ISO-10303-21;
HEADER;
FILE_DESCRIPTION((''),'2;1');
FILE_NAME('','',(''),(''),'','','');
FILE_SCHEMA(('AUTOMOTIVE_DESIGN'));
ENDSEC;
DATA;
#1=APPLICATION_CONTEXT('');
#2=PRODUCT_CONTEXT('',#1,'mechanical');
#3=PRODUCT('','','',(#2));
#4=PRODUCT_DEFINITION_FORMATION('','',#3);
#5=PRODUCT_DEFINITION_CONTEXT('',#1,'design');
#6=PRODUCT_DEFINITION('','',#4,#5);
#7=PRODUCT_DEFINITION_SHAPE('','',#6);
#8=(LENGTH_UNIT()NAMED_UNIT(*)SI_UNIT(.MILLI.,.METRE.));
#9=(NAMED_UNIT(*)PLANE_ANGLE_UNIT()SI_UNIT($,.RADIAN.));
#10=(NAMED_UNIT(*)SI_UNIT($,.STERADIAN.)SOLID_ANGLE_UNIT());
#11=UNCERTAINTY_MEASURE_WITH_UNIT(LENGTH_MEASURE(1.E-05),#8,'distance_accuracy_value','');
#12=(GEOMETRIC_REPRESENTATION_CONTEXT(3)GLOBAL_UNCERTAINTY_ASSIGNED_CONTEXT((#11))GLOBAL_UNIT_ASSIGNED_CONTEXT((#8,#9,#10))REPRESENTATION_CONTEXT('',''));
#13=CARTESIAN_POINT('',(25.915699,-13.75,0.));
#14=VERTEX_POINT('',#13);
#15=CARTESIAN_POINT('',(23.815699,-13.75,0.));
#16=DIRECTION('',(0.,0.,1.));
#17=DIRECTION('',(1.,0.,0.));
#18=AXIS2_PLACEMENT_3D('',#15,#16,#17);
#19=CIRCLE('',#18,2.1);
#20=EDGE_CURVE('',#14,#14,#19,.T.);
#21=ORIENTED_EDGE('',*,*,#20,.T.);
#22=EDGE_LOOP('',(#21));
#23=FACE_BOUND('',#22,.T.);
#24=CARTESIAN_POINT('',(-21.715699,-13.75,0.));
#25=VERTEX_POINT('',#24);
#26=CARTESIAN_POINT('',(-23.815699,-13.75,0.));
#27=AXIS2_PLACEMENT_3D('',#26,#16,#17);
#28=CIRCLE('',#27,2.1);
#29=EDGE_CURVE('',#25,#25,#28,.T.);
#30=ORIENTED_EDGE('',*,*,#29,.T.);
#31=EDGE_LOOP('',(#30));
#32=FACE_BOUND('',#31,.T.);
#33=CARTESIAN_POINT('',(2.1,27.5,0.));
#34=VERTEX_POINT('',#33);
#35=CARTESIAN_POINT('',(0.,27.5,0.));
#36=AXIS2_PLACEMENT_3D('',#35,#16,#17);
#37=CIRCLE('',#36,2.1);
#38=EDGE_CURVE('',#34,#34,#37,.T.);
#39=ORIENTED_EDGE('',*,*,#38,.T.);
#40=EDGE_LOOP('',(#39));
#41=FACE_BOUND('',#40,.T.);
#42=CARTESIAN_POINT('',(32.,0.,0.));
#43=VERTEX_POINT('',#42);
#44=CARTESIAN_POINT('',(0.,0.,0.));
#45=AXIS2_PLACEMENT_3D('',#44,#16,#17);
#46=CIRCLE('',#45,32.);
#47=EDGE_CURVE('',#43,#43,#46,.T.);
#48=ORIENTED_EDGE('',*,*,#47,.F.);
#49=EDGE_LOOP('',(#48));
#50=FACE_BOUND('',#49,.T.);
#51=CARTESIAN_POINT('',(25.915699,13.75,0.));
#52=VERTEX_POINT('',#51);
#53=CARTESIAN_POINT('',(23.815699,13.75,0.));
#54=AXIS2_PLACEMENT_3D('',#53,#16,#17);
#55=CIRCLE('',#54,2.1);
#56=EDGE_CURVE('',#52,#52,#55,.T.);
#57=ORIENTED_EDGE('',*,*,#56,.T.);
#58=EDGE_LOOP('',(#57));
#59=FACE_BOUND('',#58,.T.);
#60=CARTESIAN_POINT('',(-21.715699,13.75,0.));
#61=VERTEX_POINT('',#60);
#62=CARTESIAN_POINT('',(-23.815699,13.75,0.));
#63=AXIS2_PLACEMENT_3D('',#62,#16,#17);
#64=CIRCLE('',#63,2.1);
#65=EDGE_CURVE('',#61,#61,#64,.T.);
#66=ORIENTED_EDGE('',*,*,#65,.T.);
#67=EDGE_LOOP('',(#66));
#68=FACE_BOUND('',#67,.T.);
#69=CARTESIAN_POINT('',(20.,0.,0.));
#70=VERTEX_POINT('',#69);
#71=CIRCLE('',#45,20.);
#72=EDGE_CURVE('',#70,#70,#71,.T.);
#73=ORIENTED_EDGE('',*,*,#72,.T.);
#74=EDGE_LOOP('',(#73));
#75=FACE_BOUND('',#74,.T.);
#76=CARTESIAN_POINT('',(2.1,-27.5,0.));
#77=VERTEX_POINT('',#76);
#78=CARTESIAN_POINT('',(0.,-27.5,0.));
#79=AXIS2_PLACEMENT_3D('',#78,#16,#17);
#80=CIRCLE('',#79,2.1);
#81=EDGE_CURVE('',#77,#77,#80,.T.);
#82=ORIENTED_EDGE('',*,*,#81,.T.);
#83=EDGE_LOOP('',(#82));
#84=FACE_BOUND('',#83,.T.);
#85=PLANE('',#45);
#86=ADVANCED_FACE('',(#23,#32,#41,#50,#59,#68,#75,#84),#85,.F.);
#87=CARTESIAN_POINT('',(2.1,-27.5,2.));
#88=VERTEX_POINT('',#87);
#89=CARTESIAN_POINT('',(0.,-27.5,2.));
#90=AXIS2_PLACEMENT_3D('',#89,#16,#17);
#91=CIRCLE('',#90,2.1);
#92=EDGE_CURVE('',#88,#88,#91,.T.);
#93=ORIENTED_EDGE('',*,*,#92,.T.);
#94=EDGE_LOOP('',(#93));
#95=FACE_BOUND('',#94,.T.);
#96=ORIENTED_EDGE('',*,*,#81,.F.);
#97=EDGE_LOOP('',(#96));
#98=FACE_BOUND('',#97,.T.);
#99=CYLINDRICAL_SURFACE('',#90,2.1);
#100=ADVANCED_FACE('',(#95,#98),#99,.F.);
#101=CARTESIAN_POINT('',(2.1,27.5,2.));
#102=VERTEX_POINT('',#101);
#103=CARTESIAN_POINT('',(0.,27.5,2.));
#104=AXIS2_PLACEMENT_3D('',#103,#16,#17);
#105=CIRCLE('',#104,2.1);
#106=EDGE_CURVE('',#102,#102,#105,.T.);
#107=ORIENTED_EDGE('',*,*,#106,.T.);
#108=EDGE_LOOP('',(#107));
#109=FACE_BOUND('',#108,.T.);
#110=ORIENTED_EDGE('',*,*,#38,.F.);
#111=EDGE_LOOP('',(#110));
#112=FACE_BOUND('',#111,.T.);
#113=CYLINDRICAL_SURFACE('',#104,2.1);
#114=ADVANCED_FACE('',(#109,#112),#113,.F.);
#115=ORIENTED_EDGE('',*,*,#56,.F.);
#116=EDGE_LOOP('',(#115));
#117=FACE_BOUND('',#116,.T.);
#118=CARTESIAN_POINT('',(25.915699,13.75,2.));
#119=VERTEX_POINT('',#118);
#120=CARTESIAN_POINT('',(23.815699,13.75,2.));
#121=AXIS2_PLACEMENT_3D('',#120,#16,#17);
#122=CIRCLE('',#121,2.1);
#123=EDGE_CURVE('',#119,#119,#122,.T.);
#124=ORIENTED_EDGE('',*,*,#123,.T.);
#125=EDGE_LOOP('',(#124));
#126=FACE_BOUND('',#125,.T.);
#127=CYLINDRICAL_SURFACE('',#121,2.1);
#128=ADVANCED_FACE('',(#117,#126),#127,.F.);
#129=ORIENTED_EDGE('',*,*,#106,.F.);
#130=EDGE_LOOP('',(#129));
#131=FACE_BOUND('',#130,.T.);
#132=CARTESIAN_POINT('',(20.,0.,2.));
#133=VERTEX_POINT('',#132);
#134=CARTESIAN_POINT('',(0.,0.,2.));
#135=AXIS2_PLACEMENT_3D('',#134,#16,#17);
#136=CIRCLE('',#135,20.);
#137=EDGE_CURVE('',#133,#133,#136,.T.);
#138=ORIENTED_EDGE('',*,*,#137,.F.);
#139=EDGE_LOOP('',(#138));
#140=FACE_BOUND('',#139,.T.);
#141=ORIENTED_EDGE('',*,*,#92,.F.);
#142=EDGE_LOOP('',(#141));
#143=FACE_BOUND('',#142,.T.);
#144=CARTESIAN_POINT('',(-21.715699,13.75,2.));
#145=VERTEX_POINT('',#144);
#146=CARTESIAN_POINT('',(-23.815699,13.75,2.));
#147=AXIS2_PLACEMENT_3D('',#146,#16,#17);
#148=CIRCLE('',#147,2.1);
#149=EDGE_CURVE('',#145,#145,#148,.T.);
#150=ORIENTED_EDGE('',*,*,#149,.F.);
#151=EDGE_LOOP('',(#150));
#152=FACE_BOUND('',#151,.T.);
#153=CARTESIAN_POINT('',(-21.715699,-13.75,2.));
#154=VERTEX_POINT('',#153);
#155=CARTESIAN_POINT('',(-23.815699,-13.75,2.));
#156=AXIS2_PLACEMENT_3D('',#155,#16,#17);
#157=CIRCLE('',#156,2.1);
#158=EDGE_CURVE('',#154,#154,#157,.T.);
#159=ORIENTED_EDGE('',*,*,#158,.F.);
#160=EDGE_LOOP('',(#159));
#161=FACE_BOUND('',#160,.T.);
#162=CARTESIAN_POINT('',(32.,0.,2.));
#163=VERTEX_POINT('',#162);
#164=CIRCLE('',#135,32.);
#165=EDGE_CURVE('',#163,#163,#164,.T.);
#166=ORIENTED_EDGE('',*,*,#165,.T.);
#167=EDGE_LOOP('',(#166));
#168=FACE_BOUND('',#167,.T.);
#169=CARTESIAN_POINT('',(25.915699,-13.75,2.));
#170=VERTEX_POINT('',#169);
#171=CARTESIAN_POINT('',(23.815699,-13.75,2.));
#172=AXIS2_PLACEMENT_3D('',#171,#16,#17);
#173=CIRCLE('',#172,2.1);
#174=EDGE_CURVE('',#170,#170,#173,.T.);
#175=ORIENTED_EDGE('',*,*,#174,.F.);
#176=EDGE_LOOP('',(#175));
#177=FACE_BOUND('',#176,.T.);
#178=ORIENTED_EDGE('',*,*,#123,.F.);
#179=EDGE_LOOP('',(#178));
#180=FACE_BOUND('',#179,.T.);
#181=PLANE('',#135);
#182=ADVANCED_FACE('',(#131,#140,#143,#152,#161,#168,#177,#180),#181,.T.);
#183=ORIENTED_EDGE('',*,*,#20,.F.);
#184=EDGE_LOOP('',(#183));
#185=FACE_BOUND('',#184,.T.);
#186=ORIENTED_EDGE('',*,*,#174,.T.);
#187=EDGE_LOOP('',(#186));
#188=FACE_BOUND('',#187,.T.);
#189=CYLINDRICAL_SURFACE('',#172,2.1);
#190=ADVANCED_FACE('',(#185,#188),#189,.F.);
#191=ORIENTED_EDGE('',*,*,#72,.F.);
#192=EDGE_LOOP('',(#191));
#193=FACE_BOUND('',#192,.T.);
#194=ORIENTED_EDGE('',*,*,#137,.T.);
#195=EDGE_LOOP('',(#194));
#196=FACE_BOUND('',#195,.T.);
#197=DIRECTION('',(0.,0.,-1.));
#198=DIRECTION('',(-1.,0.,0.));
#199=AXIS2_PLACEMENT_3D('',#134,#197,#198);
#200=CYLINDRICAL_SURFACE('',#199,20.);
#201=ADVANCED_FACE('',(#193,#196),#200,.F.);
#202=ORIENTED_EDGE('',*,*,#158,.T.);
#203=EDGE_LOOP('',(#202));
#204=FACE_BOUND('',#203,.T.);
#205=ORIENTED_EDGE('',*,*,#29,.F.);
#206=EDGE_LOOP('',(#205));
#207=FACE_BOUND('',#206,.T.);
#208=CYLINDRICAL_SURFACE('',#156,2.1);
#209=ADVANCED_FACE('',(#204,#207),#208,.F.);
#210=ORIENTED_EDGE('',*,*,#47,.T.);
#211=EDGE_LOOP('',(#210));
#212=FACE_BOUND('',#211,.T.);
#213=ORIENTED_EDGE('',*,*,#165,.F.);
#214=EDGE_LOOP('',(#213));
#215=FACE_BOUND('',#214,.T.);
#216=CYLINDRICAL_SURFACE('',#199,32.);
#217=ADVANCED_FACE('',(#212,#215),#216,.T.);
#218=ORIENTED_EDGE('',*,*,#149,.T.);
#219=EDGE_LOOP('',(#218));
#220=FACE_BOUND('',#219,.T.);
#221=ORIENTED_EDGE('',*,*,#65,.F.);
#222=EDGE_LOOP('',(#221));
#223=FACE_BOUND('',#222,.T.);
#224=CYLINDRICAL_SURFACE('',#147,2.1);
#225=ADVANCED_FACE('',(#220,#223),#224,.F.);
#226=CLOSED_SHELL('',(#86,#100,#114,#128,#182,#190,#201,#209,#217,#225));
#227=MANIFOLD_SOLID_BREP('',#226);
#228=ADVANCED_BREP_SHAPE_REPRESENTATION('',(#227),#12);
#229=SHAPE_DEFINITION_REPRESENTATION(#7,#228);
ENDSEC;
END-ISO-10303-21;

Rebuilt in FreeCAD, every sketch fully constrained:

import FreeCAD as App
import Part
import Sketcher
from FreeCAD import Vector

doc = App.newDocument("Part")
body = doc.addObject("PartDesign::Body", "Body")

# Sketch on XY plane
sketch1 = body.newObject("Sketcher::SketchObject", "Sketch")
sketch1.AttachmentSupport = (doc.getObject("XY_Plane"), [""])
sketch1.MapMode = "FlatFace"
sketch1.addGeometry([
    Part.Circle(Vector(0, 0, 0), Vector(0, 0, 1), 32),
    Part.Circle(Vector(0, 0, 0), Vector(0, 0, 1), 20),
], False)
sketch1.addConstraint([
    Sketcher.Constraint("Coincident", 0, 3, -1, 1),
    Sketcher.Constraint("Coincident", 1, 3, -1, 1),
    Sketcher.Constraint("Diameter", 0, 64.0),
    Sketcher.Constraint("Diameter", 1, 40.0),
])
pad1 = body.newObject("PartDesign::Pad", "Pad")
pad1.Profile = sketch1
pad1.Length = 2

# Sketch on XY plane
sketch2 = body.newObject("Sketcher::SketchObject", "Sketch001")
sketch2.AttachmentSupport = (doc.getObject("XY_Plane"), [""])
sketch2.MapMode = "FlatFace"
sketch2.AttachmentOffset = App.Placement(Vector(0, 0, 2), App.Rotation())
sketch2.addGeometry(Part.Circle(Vector(0, 27.5, 0), Vector(0, 0, 1), 2.1), False)
sketch2.addConstraint([
    Sketcher.Constraint("PointOnObject", 0, 3, -2),
    Sketcher.Constraint("Diameter", 0, 4.2),
    Sketcher.Constraint("DistanceY", -1, 1, 0, 3, 27.5),
])
doc.recompute()
hole = body.newObject("PartDesign::Hole", "Hole")
hole.Profile = sketch2
hole.ThreadType = "None"
hole.Diameter = 4.2
hole.DepthType = "ThroughAll"
doc.recompute()

polarpattern = body.newObject("PartDesign::PolarPattern", "PolarPattern")
polarpattern.Originals = [hole]
polarpattern.Axis = (doc.getObject("Z_Axis"), [""])
polarpattern.Angle = 360
polarpattern.Occurrences = 6
body.Tip = polarpattern

doc.recompute()
